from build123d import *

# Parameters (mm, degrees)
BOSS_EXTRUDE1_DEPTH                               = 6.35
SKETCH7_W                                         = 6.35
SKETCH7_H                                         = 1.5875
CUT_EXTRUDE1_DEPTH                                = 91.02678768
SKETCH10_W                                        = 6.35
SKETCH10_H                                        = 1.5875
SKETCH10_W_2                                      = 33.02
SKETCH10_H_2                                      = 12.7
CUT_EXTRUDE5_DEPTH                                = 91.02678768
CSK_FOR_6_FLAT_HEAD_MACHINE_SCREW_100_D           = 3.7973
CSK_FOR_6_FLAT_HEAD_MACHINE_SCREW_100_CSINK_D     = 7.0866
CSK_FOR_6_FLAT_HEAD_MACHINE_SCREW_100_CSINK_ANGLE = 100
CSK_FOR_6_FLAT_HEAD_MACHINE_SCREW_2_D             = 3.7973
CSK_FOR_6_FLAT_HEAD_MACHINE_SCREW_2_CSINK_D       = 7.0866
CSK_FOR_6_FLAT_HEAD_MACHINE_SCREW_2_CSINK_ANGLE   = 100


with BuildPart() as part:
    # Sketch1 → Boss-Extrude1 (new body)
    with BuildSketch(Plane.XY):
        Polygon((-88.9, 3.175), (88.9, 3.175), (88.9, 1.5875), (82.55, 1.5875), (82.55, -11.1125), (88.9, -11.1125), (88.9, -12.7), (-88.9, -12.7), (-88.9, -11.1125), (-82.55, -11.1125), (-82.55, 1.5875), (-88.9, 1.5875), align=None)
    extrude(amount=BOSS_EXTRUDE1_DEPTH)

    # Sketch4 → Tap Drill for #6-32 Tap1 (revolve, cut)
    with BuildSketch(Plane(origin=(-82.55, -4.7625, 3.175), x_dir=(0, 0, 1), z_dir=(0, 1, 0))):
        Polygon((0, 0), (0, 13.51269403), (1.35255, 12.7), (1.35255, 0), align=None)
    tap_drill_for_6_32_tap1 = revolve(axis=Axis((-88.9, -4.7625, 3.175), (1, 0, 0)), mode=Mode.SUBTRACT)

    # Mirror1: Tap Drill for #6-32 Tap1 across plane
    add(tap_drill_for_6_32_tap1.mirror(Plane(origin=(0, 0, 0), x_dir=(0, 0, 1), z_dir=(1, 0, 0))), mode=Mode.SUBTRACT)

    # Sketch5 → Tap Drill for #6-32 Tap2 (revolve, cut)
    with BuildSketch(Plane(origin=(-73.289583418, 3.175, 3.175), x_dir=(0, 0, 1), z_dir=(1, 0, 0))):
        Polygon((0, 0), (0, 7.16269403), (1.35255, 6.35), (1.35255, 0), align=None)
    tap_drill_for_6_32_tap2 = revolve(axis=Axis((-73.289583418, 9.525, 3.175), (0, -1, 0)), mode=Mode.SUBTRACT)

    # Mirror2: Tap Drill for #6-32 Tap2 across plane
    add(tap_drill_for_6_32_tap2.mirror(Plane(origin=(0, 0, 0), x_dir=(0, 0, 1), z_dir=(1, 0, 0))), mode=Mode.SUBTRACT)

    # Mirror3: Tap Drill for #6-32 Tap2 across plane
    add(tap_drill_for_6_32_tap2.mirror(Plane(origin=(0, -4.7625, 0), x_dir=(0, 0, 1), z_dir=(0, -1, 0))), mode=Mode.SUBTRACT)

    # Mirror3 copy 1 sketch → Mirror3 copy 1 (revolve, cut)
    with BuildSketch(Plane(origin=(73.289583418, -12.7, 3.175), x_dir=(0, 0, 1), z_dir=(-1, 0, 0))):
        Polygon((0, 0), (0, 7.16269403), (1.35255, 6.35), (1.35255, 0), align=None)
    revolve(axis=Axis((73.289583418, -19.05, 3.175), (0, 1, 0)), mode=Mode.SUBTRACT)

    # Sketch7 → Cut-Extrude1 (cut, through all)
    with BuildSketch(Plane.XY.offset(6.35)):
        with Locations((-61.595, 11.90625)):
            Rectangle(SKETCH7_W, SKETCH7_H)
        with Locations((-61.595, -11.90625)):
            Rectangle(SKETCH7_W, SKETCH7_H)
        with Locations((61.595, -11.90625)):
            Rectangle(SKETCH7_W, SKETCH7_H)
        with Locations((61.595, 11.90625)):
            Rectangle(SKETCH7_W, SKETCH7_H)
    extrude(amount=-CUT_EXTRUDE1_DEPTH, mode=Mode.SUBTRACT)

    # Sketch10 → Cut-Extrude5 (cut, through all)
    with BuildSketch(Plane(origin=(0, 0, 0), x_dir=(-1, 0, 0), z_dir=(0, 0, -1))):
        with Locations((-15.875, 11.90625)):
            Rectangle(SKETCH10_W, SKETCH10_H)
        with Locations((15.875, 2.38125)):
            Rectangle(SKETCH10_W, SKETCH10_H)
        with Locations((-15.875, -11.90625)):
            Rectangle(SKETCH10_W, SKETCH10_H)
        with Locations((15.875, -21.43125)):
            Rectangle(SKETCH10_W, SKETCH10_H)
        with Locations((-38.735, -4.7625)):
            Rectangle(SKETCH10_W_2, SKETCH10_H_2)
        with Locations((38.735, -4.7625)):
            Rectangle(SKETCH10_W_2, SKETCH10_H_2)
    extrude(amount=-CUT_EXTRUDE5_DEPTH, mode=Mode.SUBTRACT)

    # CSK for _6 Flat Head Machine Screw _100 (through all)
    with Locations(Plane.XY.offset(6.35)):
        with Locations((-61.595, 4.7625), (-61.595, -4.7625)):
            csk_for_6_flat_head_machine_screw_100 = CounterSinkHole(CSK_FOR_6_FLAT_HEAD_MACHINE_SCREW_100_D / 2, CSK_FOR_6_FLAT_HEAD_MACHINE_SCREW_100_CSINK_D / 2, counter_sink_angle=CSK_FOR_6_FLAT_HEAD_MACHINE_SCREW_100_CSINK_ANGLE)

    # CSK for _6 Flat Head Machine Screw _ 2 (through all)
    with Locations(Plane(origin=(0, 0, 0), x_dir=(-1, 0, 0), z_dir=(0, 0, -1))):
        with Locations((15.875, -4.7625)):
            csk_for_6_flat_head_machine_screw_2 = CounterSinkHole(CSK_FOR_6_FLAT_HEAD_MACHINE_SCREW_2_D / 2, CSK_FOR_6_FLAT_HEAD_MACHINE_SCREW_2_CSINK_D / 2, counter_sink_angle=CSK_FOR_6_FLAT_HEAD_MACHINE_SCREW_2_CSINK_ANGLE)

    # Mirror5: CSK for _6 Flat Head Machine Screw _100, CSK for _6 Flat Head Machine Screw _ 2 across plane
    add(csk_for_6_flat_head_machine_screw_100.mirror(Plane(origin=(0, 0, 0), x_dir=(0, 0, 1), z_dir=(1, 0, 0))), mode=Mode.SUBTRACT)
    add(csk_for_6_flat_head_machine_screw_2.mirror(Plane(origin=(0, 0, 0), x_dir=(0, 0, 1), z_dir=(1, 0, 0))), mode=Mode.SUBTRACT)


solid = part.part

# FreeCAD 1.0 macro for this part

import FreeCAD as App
import Part
import Sketcher
Q = App.Units.Quantity

doc = App.newDocument("Part")
body = doc.addObject("PartDesign::Body", "Body")

# Sketch on XY plane
sketch1 = body.newObject("Sketcher::SketchObject", "Sketch")
sketch1.AttachmentSupport = (doc.getObject("XY_Plane"), [""])
sketch1.MapMode = "FlatFace"
sketch1.addGeometry(Part.LineSegment(App.Vector(88.9, 3.175, 0), App.Vector(-88.9, 3.175, 0)), False)
sketch1.addGeometry(Part.LineSegment(App.Vector(-88.9, 3.175, 0), App.Vector(-88.9, 1.5875, 0)), False)
sketch1.addGeometry(Part.LineSegment(App.Vector(-88.9, 1.5875, 0), App.Vector(-82.55, 1.5875, 0)), False)
sketch1.addGeometry(Part.LineSegment(App.Vector(-82.55, 1.5875, 0), App.Vector(-82.55, -11.1125, 0)), False)
sketch1.addGeometry(Part.LineSegment(App.Vector(-82.55, -11.1125, 0), App.Vector(-88.9, -11.1125, 0)), False)
sketch1.addGeometry(Part.LineSegment(App.Vector(-88.9, -11.1125, 0), App.Vector(-88.9, -12.7, 0)), False)
sketch1.addGeometry(Part.LineSegment(App.Vector(-88.9, -12.7, 0), App.Vector(88.9, -12.7, 0)), False)
sketch1.addGeometry(Part.LineSegment(App.Vector(88.9, -12.7, 0), App.Vector(88.9, -11.1125, 0)), False)
sketch1.addGeometry(Part.LineSegment(App.Vector(88.9, -11.1125, 0), App.Vector(82.55, -11.1125, 0)), False)
sketch1.addGeometry(Part.LineSegment(App.Vector(82.55, -11.1125, 0), App.Vector(82.55, 1.5875, 0)), False)
sketch1.addGeometry(Part.LineSegment(App.Vector(82.55, 1.5875, 0), App.Vector(88.9, 1.5875, 0)), False)
sketch1.addGeometry(Part.LineSegment(App.Vector(88.9, 1.5875, 0), App.Vector(88.9, 3.175, 0)), False)
sketch1.addConstraint(Sketcher.Constraint("Coincident", 0, 2, 1, 1))
sketch1.addConstraint(Sketcher.Constraint("Coincident", 1, 2, 2, 1))
sketch1.addConstraint(Sketcher.Constraint("Coincident", 2, 2, 3, 1))
sketch1.addConstraint(Sketcher.Constraint("Coincident", 3, 2, 4, 1))
sketch1.addConstraint(Sketcher.Constraint("Coincident", 4, 2, 5, 1))
sketch1.addConstraint(Sketcher.Constraint("Coincident", 5, 2, 6, 1))
sketch1.addConstraint(Sketcher.Constraint("Coincident", 6, 2, 7, 1))
sketch1.addConstraint(Sketcher.Constraint("Coincident", 7, 2, 8, 1))
sketch1.addConstraint(Sketcher.Constraint("Coincident", 8, 2, 9, 1))
sketch1.addConstraint(Sketcher.Constraint("Coincident", 9, 2, 10, 1))
sketch1.addConstraint(Sketcher.Constraint("Coincident", 10, 2, 11, 1))
sketch1.addConstraint(Sketcher.Constraint("Coincident", 11, 2, 0, 1))
sketch1.addConstraint(Sketcher.Constraint("Horizontal", 0))
sketch1.addConstraint(Sketcher.Constraint("Vertical", 1))
sketch1.addConstraint(Sketcher.Constraint("Horizontal", 2))
sketch1.addConstraint(Sketcher.Constraint("Vertical", 3))
sketch1.addConstraint(Sketcher.Constraint("Horizontal", 4))
sketch1.addConstraint(Sketcher.Constraint("Vertical", 5))
sketch1.addConstraint(Sketcher.Constraint("Horizontal", 6))
sketch1.addConstraint(Sketcher.Constraint("Vertical", 7))
sketch1.addConstraint(Sketcher.Constraint("Horizontal", 8))
sketch1.addConstraint(Sketcher.Constraint("Vertical", 9))
sketch1.addConstraint(Sketcher.Constraint("Horizontal", 10))
sketch1.addConstraint(Sketcher.Constraint("Vertical", 11))
sketch1.addConstraint(Sketcher.Constraint("Symmetric", 4, 2, 7, 2, -2))
sketch1.addConstraint(Sketcher.Constraint("Symmetric", 2, 2, 9, 2, -2))
sketch1.addConstraint(Sketcher.Constraint("Vertical", 1, 2, 4, 2))
sketch1.addConstraint(Sketcher.Constraint("Vertical", 7, 2, 10, 2))
sketch1.addConstraint(Sketcher.Constraint("Equal", 1, 5))
sketch1.addConstraint(Sketcher.Constraint("DistanceX", 0, 2, 0, 1, Q("7 in")))
sketch1.addConstraint(Sketcher.Constraint("DistanceY", 3, 2, 3, 1, Q("0.5 in")))
sketch1.addConstraint(Sketcher.Constraint("DistanceX", 2, 1, 2, 2, Q("0.25 in")))
sketch1.addConstraint(Sketcher.Constraint("DistanceY", 5, 2, -1, 1, Q("0.5 in")))
sketch1.addConstraint(Sketcher.Constraint("DistanceY", 1, 2, 1, 1, Q("0.0625 in")))
pad1 = body.newObject("PartDesign::Pad", "Pad")
pad1.Profile = sketch1
pad1.Length = Q("0.25 in")

# Sketch on XZ plane
sketch2 = body.newObject("Sketcher::SketchObject", "Sketch001")
sketch2.AttachmentSupport = (doc.getObject("XZ_Plane"), [""])
sketch2.MapMode = "FlatFace"
sketch2.AttachmentOffset = App.Placement(App.Vector(0, 0, 0.1875 * 25.4), App.Rotation())
sketch2.addGeometry(Part.LineSegment(App.Vector(-69.037306, 3.175, 0), App.Vector(-82.55, 3.175, 0)), False)
sketch2.addGeometry(Part.LineSegment(App.Vector(-82.55, 3.175, 0), App.Vector(-82.55, 4.52755, 0)), False)
sketch2.addGeometry(Part.LineSegment(App.Vector(-82.55, 4.52755, 0), App.Vector(-69.85, 4.52755, 0)), False)
sketch2.addGeometry(Part.LineSegment(App.Vector(-69.85, 4.52755, 0), App.Vector(-69.037306, 3.175, 0)), False)
sketch2.addGeometry(Part.LineSegment(App.Vector(-82.55, 3.175, 0), App.Vector(-69.037306, 3.175, 0)), True)  # axis
sketch2.addConstraint(Sketcher.Constraint("Coincident", 0, 2, 1, 1))
sketch2.addConstraint(Sketcher.Constraint("Coincident", 1, 2, 2, 1))
sketch2.addConstraint(Sketcher.Constraint("Coincident", 2, 2, 3, 1))
sketch2.addConstraint(Sketcher.Constraint("Coincident", 3, 2, 0, 1))
sketch2.addConstraint(Sketcher.Constraint("Horizontal", 0))
sketch2.addConstraint(Sketcher.Constraint("Vertical", 1))
sketch2.addConstraint(Sketcher.Constraint("Horizontal", 2))
sketch2.addConstraint(Sketcher.Constraint("Horizontal", 4))
sketch2.addConstraint(Sketcher.Constraint("Coincident", 4, 1, 0, 2))
sketch2.addConstraint(Sketcher.Constraint("Equal", 0, 4))
sketch2.addConstraint(Sketcher.Constraint("DistanceX", 2, 1, 2, 2, Q("0.5 in")))
sketch2.addConstraint(Sketcher.Constraint("Angle", 3, Q("-59 deg")))
sketch2.addConstraint(Sketcher.Constraint("DistanceX", 0, 2, -1, 1, Q("3.25 in")))
sketch2.addConstraint(Sketcher.Constraint("DistanceY", -1, 1, 0, 2, Q("0.125 in")))
sketch2.addConstraint(Sketcher.Constraint("DistanceY", 1, 1, 1, 2, 1.35255))
groove = body.newObject("PartDesign::Groove", "Groove")
groove.Profile = sketch2
groove.ReferenceAxis = (sketch2, ["Axis0"])
groove.Angle = 360
doc.recompute()

mirrored = body.newObject("PartDesign::Mirrored", "Mirrored")
mirrored.Originals = [groove]
mirrored.MirrorPlane = (doc.getObject("YZ_Plane"), [""])
body.Tip = mirrored

# Sketch on YZ plane
sketch3 = body.newObject("Sketcher::SketchObject", "Sketch002")
sketch3.AttachmentSupport = (doc.getObject("YZ_Plane"), [""])
sketch3.MapMode = "FlatFace"
sketch3.AttachmentOffset = App.Placement(App.Vector(0, 0, -73.289583), App.Rotation())
sketch3.addGeometry(Part.LineSegment(App.Vector(-3.987694, 3.175, 0), App.Vector(3.175, 3.175, 0)), False)
sketch3.addGeometry(Part.LineSegment(App.Vector(3.175, 3.175, 0), App.Vector(3.175, 4.52755, 0)), False)
sketch3.addGeometry(Part.LineSegment(App.Vector(3.175, 4.52755, 0), App.Vector(-3.175, 4.52755, 0)), False)
sketch3.addGeometry(Part.LineSegment(App.Vector(-3.175, 4.52755, 0), App.Vector(-3.987694, 3.175, 0)), False)
sketch3.addGeometry(Part.LineSegment(App.Vector(3.175, 3.175, 0), App.Vector(-3.987694, 3.175, 0)), True)  # axis
sketch3.addConstraint(Sketcher.Constraint("Coincident", 0, 2, 1, 1))
sketch3.addConstraint(Sketcher.Constraint("Coincident", 1, 2, 2, 1))
sketch3.addConstraint(Sketcher.Constraint("Coincident", 2, 2, 3, 1))
sketch3.addConstraint(Sketcher.Constraint("Coincident", 3, 2, 0, 1))
sketch3.addConstraint(Sketcher.Constraint("Horizontal", 0))
sketch3.addConstraint(Sketcher.Constraint("Vertical", 1))
sketch3.addConstraint(Sketcher.Constraint("Horizontal", 2))
sketch3.addConstraint(Sketcher.Constraint("Horizontal", 4))
sketch3.addConstraint(Sketcher.Constraint("Coincident", 4, 1, 0, 2))
sketch3.addConstraint(Sketcher.Constraint("Equal", 0, 4))
sketch3.addConstraint(Sketcher.Constraint("Angle", 3, Q("-121 deg")))
sketch3.addConstraint(Sketcher.Constraint("DistanceX", 2, 2, 2, 1, Q("0.25 in")))
sketch3.addConstraint(Sketcher.Constraint("DistanceX", -1, 1, 0, 2, Q("0.125 in")))
sketch3.addConstraint(Sketcher.Constraint("DistanceY", -1, 1, 0, 2, Q("0.125 in")))
sketch3.addConstraint(Sketcher.Constraint("DistanceY", 1, 1, 1, 2, 1.35255))
groove2 = body.newObject("PartDesign::Groove", "Groove001")
groove2.Profile = sketch3
groove2.ReferenceAxis = (sketch3, ["Axis0"])
groove2.Angle = 360
doc.recompute()

mirrored2 = body.newObject("PartDesign::Mirrored", "Mirrored001")
mirrored2.Originals = [groove2]
mirrored2.MirrorPlane = (doc.getObject("YZ_Plane"), [""])
body.Tip = mirrored2
doc.recompute()

datumplane = body.newObject("PartDesign::Plane", "DatumPlane")
datumplane.AttachmentSupport = (doc.getObject("XZ_Plane"), [""])
datumplane.MapMode = "FlatFace"
datumplane.AttachmentOffset = App.Placement(App.Vector(0, 0, 0.1875 * 25.4), App.Rotation())
mirrored3 = body.newObject("PartDesign::Mirrored", "Mirrored002")
mirrored3.Originals = [groove2]
mirrored3.MirrorPlane = (datumplane, [""])
body.Tip = mirrored3

# Sketch on YZ plane
sketch4 = body.newObject("Sketcher::SketchObject", "Sketch003")
sketch4.AttachmentSupport = (doc.getObject("YZ_Plane"), [""])
sketch4.MapMode = "FlatFace"
sketch4.AttachmentOffset = App.Placement(App.Vector(0, 0, 73.289583), App.Rotation())
sketch4.addGeometry(Part.LineSegment(App.Vector(-5.537306, 3.175, 0), App.Vector(-12.7, 3.175, 0)), False)
sketch4.addGeometry(Part.LineSegment(App.Vector(-12.7, 3.175, 0), App.Vector(-12.7, 4.52755, 0)), False)
sketch4.addGeometry(Part.LineSegment(App.Vector(-12.7, 4.52755, 0), App.Vector(-6.35, 4.52755, 0)), False)
sketch4.addGeometry(Part.LineSegment(App.Vector(-6.35, 4.52755, 0), App.Vector(-5.537306, 3.175, 0)), False)
sketch4.addGeometry(Part.LineSegment(App.Vector(-12.7, 3.175, 0), App.Vector(-5.537306, 3.175, 0)), True)  # axis
sketch4.addConstraint(Sketcher.Constraint("Coincident", 0, 2, 1, 1))
sketch4.addConstraint(Sketcher.Constraint("Coincident", 1, 2, 2, 1))
sketch4.addConstraint(Sketcher.Constraint("Coincident", 2, 2, 3, 1))
sketch4.addConstraint(Sketcher.Constraint("Coincident", 3, 2, 0, 1))
sketch4.addConstraint(Sketcher.Constraint("Horizontal", 0))
sketch4.addConstraint(Sketcher.Constraint("Vertical", 1))
sketch4.addConstraint(Sketcher.Constraint("Horizontal", 2))
sketch4.addConstraint(Sketcher.Constraint("Horizontal", 4))
sketch4.addConstraint(Sketcher.Constraint("Coincident", 4, 1, 0, 2))
sketch4.addConstraint(Sketcher.Constraint("Equal", 0, 4))
sketch4.addConstraint(Sketcher.Constraint("Angle", 3, Q("-59 deg")))
sketch4.addConstraint(Sketcher.Constraint("DistanceX", 2, 1, 2, 2, Q("0.25 in")))
sketch4.addConstraint(Sketcher.Constraint("DistanceX", 0, 2, -1, 1, Q("0.5 in")))
sketch4.addConstraint(Sketcher.Constraint("DistanceY", -1, 1, 0, 2, Q("0.125 in")))
sketch4.addConstraint(Sketcher.Constraint("DistanceY", 1, 1, 1, 2, 1.35255))
groove3 = body.newObject("PartDesign::Groove", "Groove002")
groove3.Profile = sketch4
groove3.ReferenceAxis = (sketch4, ["Axis0"])
groove3.Angle = 360

# Sketch on XY plane
sketch5 = body.newObject("Sketcher::SketchObject", "Sketch004")
sketch5.AttachmentSupport = (doc.getObject("XY_Plane"), [""])
sketch5.MapMode = "FlatFace"
sketch5.AttachmentOffset = App.Placement(App.Vector(0, 0, 0.25 * 25.4), App.Rotation())
sketch5.addGeometry(Part.LineSegment(App.Vector(-64.77, 12.7, 0), App.Vector(-64.77, 11.1125, 0)), False)
sketch5.addGeometry(Part.LineSegment(App.Vector(-64.77, 11.1125, 0), App.Vector(-58.42, 11.1125, 0)), False)
sketch5.addGeometry(Part.LineSegment(App.Vector(-58.42, 11.1125, 0), App.Vector(-58.42, 12.7, 0)), False)
sketch5.addGeometry(Part.LineSegment(App.Vector(-58.42, 12.7, 0), App.Vector(-64.77, 12.7, 0)), False)
sketch5.addGeometry(Part.LineSegment(App.Vector(-64.77, -11.1125, 0), App.Vector(-64.77, -12.7, 0)), False)
sketch5.addGeometry(Part.LineSegment(App.Vector(-64.77, -12.7, 0), App.Vector(-58.42, -12.7, 0)), False)
sketch5.addGeometry(Part.LineSegment(App.Vector(-58.42, -12.7, 0), App.Vector(-58.42, -11.1125, 0)), False)
sketch5.addGeometry(Part.LineSegment(App.Vector(-58.42, -11.1125, 0), App.Vector(-64.77, -11.1125, 0)), False)
sketch5.addGeometry(Part.LineSegment(App.Vector(58.42, -11.1125, 0), App.Vector(58.42, -12.7, 0)), False)
sketch5.addGeometry(Part.LineSegment(App.Vector(58.42, -12.7, 0), App.Vector(64.77, -12.7, 0)), False)
sketch5.addGeometry(Part.LineSegment(App.Vector(64.77, -12.7, 0), App.Vector(64.77, -11.1125, 0)), False)
sketch5.addGeometry(Part.LineSegment(App.Vector(64.77, -11.1125, 0), App.Vector(58.42, -11.1125, 0)), False)
sketch5.addGeometry(Part.LineSegment(App.Vector(58.42, 12.7, 0), App.Vector(58.42, 11.1125, 0)), False)
sketch5.addGeometry(Part.LineSegment(App.Vector(58.42, 11.1125, 0), App.Vector(64.77, 11.1125, 0)), False)
sketch5.addGeometry(Part.LineSegment(App.Vector(64.77, 11.1125, 0), App.Vector(64.77, 12.7, 0)), False)
sketch5.addGeometry(Part.LineSegment(App.Vector(64.77, 12.7, 0), App.Vector(58.42, 12.7, 0)), False)
sketch5.addConstraint(Sketcher.Constraint("Coincident", 0, 2, 1, 1))
sketch5.addConstraint(Sketcher.Constraint("Coincident", 1, 2, 2, 1))
sketch5.addConstraint(Sketcher.Constraint("Coincident", 2, 2, 3, 1))
sketch5.addConstraint(Sketcher.Constraint("Coincident", 3, 2, 0, 1))
sketch5.addConstraint(Sketcher.Constraint("Coincident", 4, 2, 5, 1))
sketch5.addConstraint(Sketcher.Constraint("Coincident", 5, 2, 6, 1))
sketch5.addConstraint(Sketcher.Constraint("Coincident", 6, 2, 7, 1))
sketch5.addConstraint(Sketcher.Constraint("Coincident", 7, 2, 4, 1))
sketch5.addConstraint(Sketcher.Constraint("Coincident", 8, 2, 9, 1))
sketch5.addConstraint(Sketcher.Constraint("Coincident", 9, 2, 10, 1))
sketch5.addConstraint(Sketcher.Constraint("Coincident", 10, 2, 11, 1))
sketch5.addConstraint(Sketcher.Constraint("Coincident", 11, 2, 8, 1))
sketch5.addConstraint(Sketcher.Constraint("Coincident", 12, 2, 13, 1))
sketch5.addConstraint(Sketcher.Constraint("Coincident", 13, 2, 14, 1))
sketch5.addConstraint(Sketcher.Constraint("Coincident", 14, 2, 15, 1))
sketch5.addConstraint(Sketcher.Constraint("Coincident", 15, 2, 12, 1))
sketch5.addConstraint(Sketcher.Constraint("Vertical", 0))
sketch5.addConstraint(Sketcher.Constraint("Horizontal", 1))
sketch5.addConstraint(Sketcher.Constraint("Vertical", 2))
sketch5.addConstraint(Sketcher.Constraint("Horizontal", 3))
sketch5.addConstraint(Sketcher.Constraint("Vertical", 4))
sketch5.addConstraint(Sketcher.Constraint("Horizontal", 5))
sketch5.addConstraint(Sketcher.Constraint("Vertical", 6))
sketch5.addConstraint(Sketcher.Constraint("Horizontal", 7))
sketch5.addConstraint(Sketcher.Constraint("Vertical", 8))
sketch5.addConstraint(Sketcher.Constraint("Horizontal", 9))
sketch5.addConstraint(Sketcher.Constraint("Vertical", 10))
sketch5.addConstraint(Sketcher.Constraint("Horizontal", 11))
sketch5.addConstraint(Sketcher.Constraint("Vertical", 12))
sketch5.addConstraint(Sketcher.Constraint("Horizontal", 13))
sketch5.addConstraint(Sketcher.Constraint("Vertical", 14))
sketch5.addConstraint(Sketcher.Constraint("Horizontal", 15))
sketch5.addConstraint(Sketcher.Constraint("Symmetric", 2, 2, 8, 2, -1, 1))
sketch5.addConstraint(Sketcher.Constraint("Symmetric", 0, 2, 10, 2, -1, 1))
sketch5.addConstraint(Sketcher.Constraint("Symmetric", 6, 2, 12, 2, -1, 1))
sketch5.addConstraint(Sketcher.Constraint("Symmetric", 4, 2, 14, 2, -1, 1))
sketch5.addConstraint(Sketcher.Constraint("Symmetric", 5, 2, 8, 2, -2))
sketch5.addConstraint(Sketcher.Constraint("Symmetric", 7, 2, 10, 2, -2))
sketch5.addConstraint(Sketcher.Constraint("DistanceY", 4, 2, 3, 2, Q("1 in")))
sketch5.addConstraint(Sketcher.Constraint("DistanceX", 1, 1, 1, 2, Q("0.25 in")))
sketch5.addConstraint(Sketcher.Constraint("DistanceX", 1, 2, -1, 1, Q("2.3 in")))
sketch5.addConstraint(Sketcher.Constraint("DistanceY", 0, 2, 0, 1, Q("0.0625 in")))
pocket1 = body.newObject("PartDesign::Pocket", "Pocket")
pocket1.Profile = sketch5
pocket1.Type = "ThroughAll"

# Sketch on XY plane
sketch6 = body.newObject("Sketcher::SketchObject", "Sketch005")
sketch6.AttachmentSupport = (doc.getObject("XY_Plane"), [""])
sketch6.MapMode = "FlatFace"
sketch6.addGeometry(Part.LineSegment(App.Vector(19.05, 12.7, 0), App.Vector(19.05, 11.1125, 0)), False)
sketch6.addGeometry(Part.LineSegment(App.Vector(19.05, 11.1125, 0), App.Vector(12.7, 11.1125, 0)), False)
sketch6.addGeometry(Part.LineSegment(App.Vector(12.7, 11.1125, 0), App.Vector(12.7, 12.7, 0)), False)
sketch6.addGeometry(Part.LineSegment(App.Vector(12.7, 12.7, 0), App.Vector(19.05, 12.7, 0)), False)
sketch6.addGeometry(Part.LineSegment(App.Vector(-12.7, 3.175, 0), App.Vector(-12.7, 1.5875, 0)), False)
sketch6.addGeometry(Part.LineSegment(App.Vector(-12.7, 1.5875, 0), App.Vector(-19.05, 1.5875, 0)), False)
sketch6.addGeometry(Part.LineSegment(App.Vector(-19.05, 1.5875, 0), App.Vector(-19.05, 3.175, 0)), False)
sketch6.addGeometry(Part.LineSegment(App.Vector(-19.05, 3.175, 0), App.Vector(-12.7, 3.175, 0)), False)
sketch6.addGeometry(Part.LineSegment(App.Vector(19.05, -11.1125, 0), App.Vector(19.05, -12.7, 0)), False)
sketch6.addGeometry(Part.LineSegment(App.Vector(19.05, -12.7, 0), App.Vector(12.7, -12.7, 0)), False)
sketch6.addGeometry(Part.LineSegment(App.Vector(12.7, -12.7, 0), App.Vector(12.7, -11.1125, 0)), False)
sketch6.addGeometry(Part.LineSegment(App.Vector(12.7, -11.1125, 0), App.Vector(19.05, -11.1125, 0)), False)
sketch6.addGeometry(Part.LineSegment(App.Vector(-12.7, -20.6375, 0), App.Vector(-12.7, -22.225, 0)), False)
sketch6.addGeometry(Part.LineSegment(App.Vector(-12.7, -22.225, 0), App.Vector(-19.05, -22.225, 0)), False)
sketch6.addGeometry(Part.LineSegment(App.Vector(-19.05, -22.225, 0), App.Vector(-19.05, -20.6375, 0)), False)
sketch6.addGeometry(Part.LineSegment(App.Vector(-19.05, -20.6375, 0), App.Vector(-12.7, -20.6375, 0)), False)
sketch6.addGeometry(Part.LineSegment(App.Vector(55.245, 1.5875, 0), App.Vector(55.245, -11.1125, 0)), False)
sketch6.addGeometry(Part.LineSegment(App.Vector(55.245, -11.1125, 0), App.Vector(22.225, -11.1125, 0)), False)
sketch6.addGeometry(Part.LineSegment(App.Vector(22.225, -11.1125, 0), App.Vector(22.225, 1.5875, 0)), False)
sketch6.addGeometry(Part.LineSegment(App.Vector(22.225, 1.5875, 0), App.Vector(55.245, 1.5875, 0)), False)
sketch6.addGeometry(Part.LineSegment(App.Vector(-22.225, 1.5875, 0), App.Vector(-22.225, -11.1125, 0)), False)
sketch6.addGeometry(Part.LineSegment(App.Vector(-22.225, -11.1125, 0), App.Vector(-55.245, -11.1125, 0)), False)
sketch6.addGeometry(Part.LineSegment(App.Vector(-55.245, -11.1125, 0), App.Vector(-55.245, 1.5875, 0)), False)
sketch6.addGeometry(Part.LineSegment(App.Vector(-55.245, 1.5875, 0), App.Vector(-22.225, 1.5875, 0)), False)
sketch6.addConstraint(Sketcher.Constraint("Coincident", 0, 2, 1, 1))
sketch6.addConstraint(Sketcher.Constraint("Coincident", 1, 2, 2, 1))
sketch6.addConstraint(Sketcher.Constraint("Coincident", 2, 2, 3, 1))
sketch6.addConstraint(Sketcher.Constraint("Coincident", 3, 2, 0, 1))
sketch6.addConstraint(Sketcher.Constraint("Coincident", 4, 2, 5, 1))
sketch6.addConstraint(Sketcher.Constraint("Coincident", 5, 2, 6, 1))
sketch6.addConstraint(Sketcher.Constraint("Coincident", 6, 2, 7, 1))
sketch6.addConstraint(Sketcher.Constraint("Coincident", 7, 2, 4, 1))
sketch6.addConstraint(Sketcher.Constraint("Coincident", 8, 2, 9, 1))
sketch6.addConstraint(Sketcher.Constraint("Coincident", 9, 2, 10, 1))
sketch6.addConstraint(Sketcher.Constraint("Coincident", 10, 2, 11, 1))
sketch6.addConstraint(Sketcher.Constraint("Coincident", 11, 2, 8, 1))
sketch6.addConstraint(Sketcher.Constraint("Coincident", 12, 2, 13, 1))
sketch6.addConstraint(Sketcher.Constraint("Coincident", 13, 2, 14, 1))
sketch6.addConstraint(Sketcher.Constraint("Coincident", 14, 2, 15, 1))
sketch6.addConstraint(Sketcher.Constraint("Coincident", 15, 2, 12, 1))
sketch6.addConstraint(Sketcher.Constraint("Coincident", 16, 2, 17, 1))
sketch6.addConstraint(Sketcher.Constraint("Coincident", 17, 2, 18, 1))
sketch6.addConstraint(Sketcher.Constraint("Coincident", 18, 2, 19, 1))
sketch6.addConstraint(Sketcher.Constraint("Coincident", 19, 2, 16, 1))
sketch6.addConstraint(Sketcher.Constraint("Coincident", 20, 2, 21, 1))
sketch6.addConstraint(Sketcher.Constraint("Coincident", 21, 2, 22, 1))
sketch6.addConstraint(Sketcher.Constraint("Coincident", 22, 2, 23, 1))
sketch6.addConstraint(Sketcher.Constraint("Coincident", 23, 2, 20, 1))
sketch6.addConstraint(Sketcher.Constraint("Vertical", 0))
sketch6.addConstraint(Sketcher.Constraint("Horizontal", 1))
sketch6.addConstraint(Sketcher.Constraint("Vertical", 2))
sketch6.addConstraint(Sketcher.Constraint("Horizontal", 3))
sketch6.addConstraint(Sketcher.Constraint("Vertical", 4))
sketch6.addConstraint(Sketcher.Constraint("Horizontal", 5))
sketch6.addConstraint(Sketcher.Constraint("Vertical", 6))
sketch6.addConstraint(Sketcher.Constraint("Horizontal", 7))
sketch6.addConstraint(Sketcher.Constraint("Vertical", 8))
sketch6.addConstraint(Sketcher.Constraint("Horizontal", 9))
sketch6.addConstraint(Sketcher.Constraint("Vertical", 10))
sketch6.addConstraint(Sketcher.Constraint("Horizontal", 11))
sketch6.addConstraint(Sketcher.Constraint("Vertical", 12))
sketch6.addConstraint(Sketcher.Constraint("Horizontal", 13))
sketch6.addConstraint(Sketcher.Constraint("Vertical", 14))
sketch6.addConstraint(Sketcher.Constraint("Horizontal", 15))
sketch6.addConstraint(Sketcher.Constraint("Vertical", 16))
sketch6.addConstraint(Sketcher.Constraint("Horizontal", 17))
sketch6.addConstraint(Sketcher.Constraint("Vertical", 18))
sketch6.addConstraint(Sketcher.Constraint("Horizontal", 19))
sketch6.addConstraint(Sketcher.Constraint("Vertical", 20))
sketch6.addConstraint(Sketcher.Constraint("Horizontal", 21))
sketch6.addConstraint(Sketcher.Constraint("Vertical", 22))
sketch6.addConstraint(Sketcher.Constraint("Horizontal", 23))
sketch6.addConstraint(Sketcher.Constraint("Symmetric", 17, 2, 20, 2, -2))
sketch6.addConstraint(Sketcher.Constraint("Symmetric", 19, 2, 22, 2, -2))
sketch6.addConstraint(Sketcher.Constraint("Symmetric", 3, 2, 8, 2, -1))
sketch6.addConstraint(Sketcher.Constraint("Symmetric", 1, 2, 10, 2, -1))
sketch6.addConstraint(Sketcher.Constraint("Horizontal", 11, 2, 16, 2))
sketch6.addConstraint(Sketcher.Constraint("Horizontal", 5, 2, 18, 2))
sketch6.addConstraint(Sketcher.Constraint("Vertical", 7, 2, 12, 2))
sketch6.addConstraint(Sketcher.Constraint("Vertical", 6, 2, 13, 2))
sketch6.addConstraint(Sketcher.Constraint("Equal", 3, 5))
sketch6.addConstraint(Sketcher.Constraint("Equal", 2, 4))
sketch6.addConstraint(Sketcher.Constraint("Equal", 10, 12))
sketch6.addConstraint(Sketcher.Constraint("DistanceX", 17, 2, 17, 1, Q("1.3 in")))
sketch6.addConstraint(Sketcher.Constraint("DistanceY", 16, 2, 16, 1, Q("0.5 in")))
sketch6.addConstraint(Sketcher.Constraint("DistanceX", 4, 2, 1, 2, Q("1 in")))
sketch6.addConstraint(Sketcher.Constraint("DistanceY", 8, 2, 3, 2, Q("1 in")))
sketch6.addConstraint(Sketcher.Constraint("DistanceY", 12, 2, 7, 2, Q("1 in")))
sketch6.addConstraint(Sketcher.Constraint("DistanceX", 1, 2, 1, 1, Q("0.25 in")))
sketch6.addConstraint(Sketcher.Constraint("DistanceX", -1, 1, 1, 2, Q("0.5 in")))
sketch6.addConstraint(Sketcher.Constraint("DistanceY", 0, 2, 0, 1, Q("0.0625 in")))
sketch6.addConstraint(Sketcher.Constraint("DistanceX", -1, 1, 16, 2, Q("2.175 in")))
pocket2 = body.newObject("PartDesign::Pocket", "Pocket001")
pocket2.Profile = sketch6
pocket2.Type = "ThroughAll"
pocket2.Reversed = True

# Sketch on XY plane
sketch7 = body.newObject("Sketcher::SketchObject", "Sketch006")
sketch7.AttachmentSupport = (doc.getObject("XY_Plane"), [""])
sketch7.MapMode = "FlatFace"
sketch7.AttachmentOffset = App.Placement(App.Vector(0, 0, 0.25 * 25.4), App.Rotation())
sketch7.addGeometry(Part.Circle(App.Vector(-61.595, 4.7625, 0), App.Vector(0, 0, 1), 1.89865), False)
sketch7.addGeometry(Part.Circle(App.Vector(-61.595, -4.7625, 0), App.Vector(0, 0, 1), 1.89865), False)
sketch7.addConstraint(Sketcher.Constraint("Equal", 0, 1))
sketch7.addConstraint(Sketcher.Constraint("Symmetric", 0, 3, 1, 3, -1))
sketch7.addConstraint(Sketcher.Constraint("Diameter", 0, Q("0.1495 in")))
sketch7.addConstraint(Sketcher.Constraint("DistanceX", 0, 3, -1, 1, Q("2.425 in")))
sketch7.addConstraint(Sketcher.Constraint("DistanceY", -1, 1, 0, 3, Q("0.1875 in")))
doc.recompute()
hole = body.newObject("PartDesign::Hole", "Hole")
hole.Profile = sketch7
hole.ThreadType = "None"
hole.Diameter = Q("0.1495 in")
hole.DepthType = "ThroughAll"
hole.HoleCutType = "Countersink"
hole.HoleCutDiameter = Q("0.279 in")
hole.HoleCutCountersinkAngle = 100

# Sketch on XY plane
sketch8 = body.newObject("Sketcher::SketchObject", "Sketch007")
sketch8.AttachmentSupport = (doc.getObject("XY_Plane"), [""])
sketch8.MapMode = "FlatFace"
sketch8.addGeometry(Part.Circle(App.Vector(-15.875, -4.7625, 0), App.Vector(0, 0, 1), 1.89865), False)
sketch8.addConstraint(Sketcher.Constraint("Diameter", 0, Q("0.1495 in")))
sketch8.addConstraint(Sketcher.Constraint("DistanceX", 0, 3, -1, 1, Q("0.625 in")))
sketch8.addConstraint(Sketcher.Constraint("DistanceY", 0, 3, -1, 1, Q("0.1875 in")))
doc.recompute()
hole2 = body.newObject("PartDesign::Hole", "Hole001")
hole2.Profile = sketch8
hole2.ThreadType = "None"
hole2.Diameter = Q("0.1495 in")
hole2.DepthType = "ThroughAll"
hole2.HoleCutType = "Countersink"
hole2.HoleCutDiameter = Q("0.279 in")
hole2.HoleCutCountersinkAngle = 100
hole2.Reversed = True
doc.recompute()

mirrored4 = body.newObject("PartDesign::Mirrored", "Mirrored003")
mirrored4.Originals = [hole, hole2]
mirrored4.MirrorPlane = (doc.getObject("YZ_Plane"), [""])
body.Tip = mirrored4

doc.recompute()
